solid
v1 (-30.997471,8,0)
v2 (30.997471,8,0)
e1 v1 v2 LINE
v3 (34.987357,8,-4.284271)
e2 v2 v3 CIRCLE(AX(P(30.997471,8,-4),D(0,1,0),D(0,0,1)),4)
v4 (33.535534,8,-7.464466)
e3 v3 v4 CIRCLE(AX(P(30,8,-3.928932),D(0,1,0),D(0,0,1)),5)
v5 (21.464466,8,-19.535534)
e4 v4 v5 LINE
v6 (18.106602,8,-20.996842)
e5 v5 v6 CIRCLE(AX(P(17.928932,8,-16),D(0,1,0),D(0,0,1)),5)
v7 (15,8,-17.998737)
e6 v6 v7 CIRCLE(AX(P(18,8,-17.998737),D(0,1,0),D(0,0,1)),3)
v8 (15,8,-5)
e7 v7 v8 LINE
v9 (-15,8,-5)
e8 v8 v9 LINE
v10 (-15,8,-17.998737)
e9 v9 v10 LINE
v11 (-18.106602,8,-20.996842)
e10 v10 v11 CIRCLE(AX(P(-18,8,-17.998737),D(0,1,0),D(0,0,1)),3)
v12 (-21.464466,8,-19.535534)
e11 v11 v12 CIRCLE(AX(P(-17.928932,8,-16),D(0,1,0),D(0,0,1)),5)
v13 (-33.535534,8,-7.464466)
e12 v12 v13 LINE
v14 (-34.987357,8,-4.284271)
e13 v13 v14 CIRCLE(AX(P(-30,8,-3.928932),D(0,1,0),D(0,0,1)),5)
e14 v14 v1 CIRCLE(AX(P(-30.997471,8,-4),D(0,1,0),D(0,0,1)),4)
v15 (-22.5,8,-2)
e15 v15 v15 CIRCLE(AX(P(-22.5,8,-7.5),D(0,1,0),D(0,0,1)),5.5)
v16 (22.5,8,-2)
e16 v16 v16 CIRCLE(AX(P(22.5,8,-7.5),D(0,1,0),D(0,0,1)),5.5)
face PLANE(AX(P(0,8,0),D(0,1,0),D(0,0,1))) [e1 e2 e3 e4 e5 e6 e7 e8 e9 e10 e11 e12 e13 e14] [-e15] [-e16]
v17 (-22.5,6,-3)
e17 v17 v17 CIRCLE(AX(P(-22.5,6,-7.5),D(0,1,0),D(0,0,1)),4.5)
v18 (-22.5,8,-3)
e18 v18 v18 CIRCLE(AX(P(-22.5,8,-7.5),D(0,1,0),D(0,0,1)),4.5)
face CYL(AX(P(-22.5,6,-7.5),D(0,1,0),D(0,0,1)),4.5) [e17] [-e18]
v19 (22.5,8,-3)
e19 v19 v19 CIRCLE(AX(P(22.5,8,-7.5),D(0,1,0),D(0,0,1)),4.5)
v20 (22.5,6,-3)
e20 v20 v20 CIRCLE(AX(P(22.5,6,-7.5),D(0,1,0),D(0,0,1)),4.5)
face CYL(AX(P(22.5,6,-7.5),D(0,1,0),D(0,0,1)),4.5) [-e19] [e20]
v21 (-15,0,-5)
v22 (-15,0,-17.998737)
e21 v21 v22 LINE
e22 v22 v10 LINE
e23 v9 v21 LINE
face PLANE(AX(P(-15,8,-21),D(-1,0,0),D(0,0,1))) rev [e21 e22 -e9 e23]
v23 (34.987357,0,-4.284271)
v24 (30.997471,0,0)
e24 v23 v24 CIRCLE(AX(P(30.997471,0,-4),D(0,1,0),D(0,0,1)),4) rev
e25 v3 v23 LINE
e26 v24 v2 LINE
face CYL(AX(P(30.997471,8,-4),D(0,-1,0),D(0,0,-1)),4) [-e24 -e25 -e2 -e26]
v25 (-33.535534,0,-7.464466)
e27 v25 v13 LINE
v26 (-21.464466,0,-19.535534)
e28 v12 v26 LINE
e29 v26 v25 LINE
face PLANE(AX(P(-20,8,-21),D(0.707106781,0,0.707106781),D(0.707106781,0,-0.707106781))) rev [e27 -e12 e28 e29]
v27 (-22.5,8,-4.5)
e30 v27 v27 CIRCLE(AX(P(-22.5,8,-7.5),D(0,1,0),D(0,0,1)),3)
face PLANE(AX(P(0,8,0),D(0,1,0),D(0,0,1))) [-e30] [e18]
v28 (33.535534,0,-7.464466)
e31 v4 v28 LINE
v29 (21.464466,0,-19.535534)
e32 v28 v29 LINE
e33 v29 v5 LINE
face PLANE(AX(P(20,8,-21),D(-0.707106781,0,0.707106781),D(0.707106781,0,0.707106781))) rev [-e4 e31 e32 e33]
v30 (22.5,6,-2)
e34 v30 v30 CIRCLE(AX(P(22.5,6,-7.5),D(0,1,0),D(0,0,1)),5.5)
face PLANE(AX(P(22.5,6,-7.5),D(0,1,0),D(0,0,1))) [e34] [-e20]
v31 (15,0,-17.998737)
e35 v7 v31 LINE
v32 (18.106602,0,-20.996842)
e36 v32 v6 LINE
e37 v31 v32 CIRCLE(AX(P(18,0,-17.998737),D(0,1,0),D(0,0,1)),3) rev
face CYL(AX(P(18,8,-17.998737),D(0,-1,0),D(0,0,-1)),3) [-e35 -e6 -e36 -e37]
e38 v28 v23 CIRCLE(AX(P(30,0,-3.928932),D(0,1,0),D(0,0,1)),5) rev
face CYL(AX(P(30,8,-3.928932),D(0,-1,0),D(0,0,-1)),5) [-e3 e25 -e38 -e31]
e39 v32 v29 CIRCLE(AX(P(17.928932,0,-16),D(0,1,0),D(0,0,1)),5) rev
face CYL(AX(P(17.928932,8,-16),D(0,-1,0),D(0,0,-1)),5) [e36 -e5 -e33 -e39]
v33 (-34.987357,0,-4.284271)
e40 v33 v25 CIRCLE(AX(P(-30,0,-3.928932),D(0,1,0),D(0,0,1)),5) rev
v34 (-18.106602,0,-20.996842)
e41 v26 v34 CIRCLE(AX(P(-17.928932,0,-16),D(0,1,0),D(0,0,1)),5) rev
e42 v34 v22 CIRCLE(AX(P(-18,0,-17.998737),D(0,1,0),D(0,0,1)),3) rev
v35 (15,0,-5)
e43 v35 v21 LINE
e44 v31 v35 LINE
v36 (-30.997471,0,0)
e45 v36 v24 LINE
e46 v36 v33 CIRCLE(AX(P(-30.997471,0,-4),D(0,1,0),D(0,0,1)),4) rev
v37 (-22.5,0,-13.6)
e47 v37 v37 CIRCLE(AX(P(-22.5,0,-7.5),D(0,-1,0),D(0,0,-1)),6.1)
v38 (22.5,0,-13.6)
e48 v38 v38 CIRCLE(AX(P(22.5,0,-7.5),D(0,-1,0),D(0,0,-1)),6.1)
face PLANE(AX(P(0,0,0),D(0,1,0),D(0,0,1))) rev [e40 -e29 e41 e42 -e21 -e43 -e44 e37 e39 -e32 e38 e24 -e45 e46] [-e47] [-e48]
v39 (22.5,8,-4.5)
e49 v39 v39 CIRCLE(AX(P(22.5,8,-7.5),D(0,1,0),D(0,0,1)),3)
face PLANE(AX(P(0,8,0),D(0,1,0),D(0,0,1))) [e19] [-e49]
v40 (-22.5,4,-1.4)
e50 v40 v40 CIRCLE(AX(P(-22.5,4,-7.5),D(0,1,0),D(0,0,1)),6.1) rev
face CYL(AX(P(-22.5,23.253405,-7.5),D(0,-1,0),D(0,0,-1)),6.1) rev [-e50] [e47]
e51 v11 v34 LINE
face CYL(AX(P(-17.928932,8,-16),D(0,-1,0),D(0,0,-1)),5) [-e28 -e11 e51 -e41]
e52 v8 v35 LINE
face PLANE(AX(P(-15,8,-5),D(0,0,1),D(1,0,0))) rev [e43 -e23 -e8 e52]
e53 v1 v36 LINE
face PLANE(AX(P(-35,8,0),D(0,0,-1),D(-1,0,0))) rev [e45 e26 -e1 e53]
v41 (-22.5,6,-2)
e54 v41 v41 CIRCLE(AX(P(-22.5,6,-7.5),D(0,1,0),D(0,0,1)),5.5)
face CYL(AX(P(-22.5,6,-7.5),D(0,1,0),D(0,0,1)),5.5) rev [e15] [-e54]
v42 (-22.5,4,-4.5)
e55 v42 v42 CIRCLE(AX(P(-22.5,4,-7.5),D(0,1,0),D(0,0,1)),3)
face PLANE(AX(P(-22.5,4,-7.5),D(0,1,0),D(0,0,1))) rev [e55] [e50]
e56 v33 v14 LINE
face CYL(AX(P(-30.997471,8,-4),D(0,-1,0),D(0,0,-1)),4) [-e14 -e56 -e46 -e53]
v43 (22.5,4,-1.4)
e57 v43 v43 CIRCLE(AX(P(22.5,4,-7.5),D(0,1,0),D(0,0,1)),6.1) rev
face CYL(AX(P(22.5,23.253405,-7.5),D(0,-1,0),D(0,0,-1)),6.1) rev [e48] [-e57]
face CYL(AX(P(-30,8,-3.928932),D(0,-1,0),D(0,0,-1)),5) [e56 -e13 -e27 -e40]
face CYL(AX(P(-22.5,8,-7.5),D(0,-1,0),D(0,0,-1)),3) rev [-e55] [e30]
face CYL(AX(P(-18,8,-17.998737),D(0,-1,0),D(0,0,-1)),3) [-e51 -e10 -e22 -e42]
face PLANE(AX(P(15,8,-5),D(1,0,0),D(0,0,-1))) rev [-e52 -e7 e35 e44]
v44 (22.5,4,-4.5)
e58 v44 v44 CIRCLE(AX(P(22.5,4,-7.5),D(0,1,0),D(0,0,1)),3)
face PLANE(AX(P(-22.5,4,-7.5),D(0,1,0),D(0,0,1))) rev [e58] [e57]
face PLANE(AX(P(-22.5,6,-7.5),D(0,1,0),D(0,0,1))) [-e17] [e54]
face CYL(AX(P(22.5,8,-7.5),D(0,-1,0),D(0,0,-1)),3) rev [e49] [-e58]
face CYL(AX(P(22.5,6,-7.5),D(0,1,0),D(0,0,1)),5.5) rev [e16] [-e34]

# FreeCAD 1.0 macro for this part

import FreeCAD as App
import Part
import Sketcher
from FreeCAD import Vector
Q = App.Units.Quantity


def edges_at(feature, points):
    """Names of the edges that pass closest to the given points."""
    edges = feature.Shape.Edges
    near = lambda p: min(range(len(edges)), key=lambda i: edges[i].distToShape(Part.Vertex(*p))[0])
    return sorted({f"Edge{near(p) + 1}" for p in points})

doc = App.newDocument("Part")
body = doc.addObject("PartDesign::Body", "Body")

sketch1 = doc.addObject("Sketcher::SketchObject", "Sketch")
body.addObject(sketch1)
sketch1.AttachmentSupport = (doc.XZ_Plane, [""])
sketch1.MapMode = "FlatFace"
sketch1.addGeometry(Part.LineSegment(Vector(-35, 0, 0), Vector(35, 0, 0)), False)
sketch1.addGeometry(Part.LineSegment(Vector(35, 0, 0), Vector(35, -6, 0)), False)
sketch1.addGeometry(Part.LineSegment(Vector(35, -6, 0), Vector(20, -21, 0)), False)
sketch1.addGeometry(Part.LineSegment(Vector(20, -21, 0), Vector(15, -21, 0)), False)
sketch1.addGeometry(Part.LineSegment(Vector(15, -21, 0), Vector(15, -5, 0)), False)
sketch1.addGeometry(Part.LineSegment(Vector(15, -5, 0), Vector(-15, -5, 0)), False)
sketch1.addGeometry(Part.LineSegment(Vector(-15, -5, 0), Vector(-15, -21, 0)), False)
sketch1.addGeometry(Part.LineSegment(Vector(-15, -21, 0), Vector(-20, -21, 0)), False)
sketch1.addGeometry(Part.LineSegment(Vector(-20, -21, 0), Vector(-35, -6, 0)), False)
sketch1.addGeometry(Part.LineSegment(Vector(-35, -6, 0), Vector(-35, 0, 0)), False)
sketch1.addGeometry(Part.Circle(Vector(-22.5, -7.5, 0), Vector(0, 0, 1), 3), False)
sketch1.addGeometry(Part.Circle(Vector(22.5, -7.5, 0), Vector(0, 0, 1), 3), False)
sketch1.addConstraint(Sketcher.Constraint("Coincident", 0, 2, 1, 1))
sketch1.addConstraint(Sketcher.Constraint("Coincident", 1, 2, 2, 1))
sketch1.addConstraint(Sketcher.Constraint("Coincident", 2, 2, 3, 1))
sketch1.addConstraint(Sketcher.Constraint("Coincident", 3, 2, 4, 1))
sketch1.addConstraint(Sketcher.Constraint("Coincident", 4, 2, 5, 1))
sketch1.addConstraint(Sketcher.Constraint("Coincident", 5, 2, 6, 1))
sketch1.addConstraint(Sketcher.Constraint("Coincident", 6, 2, 7, 1))
sketch1.addConstraint(Sketcher.Constraint("Coincident", 7, 2, 8, 1))
sketch1.addConstraint(Sketcher.Constraint("Coincident", 8, 2, 9, 1))
sketch1.addConstraint(Sketcher.Constraint("Coincident", 9, 2, 0, 1))
sketch1.addConstraint(Sketcher.Constraint("Horizontal", 0))
sketch1.addConstraint(Sketcher.Constraint("Vertical", 1))
sketch1.addConstraint(Sketcher.Constraint("Horizontal", 3))
sketch1.addConstraint(Sketcher.Constraint("Vertical", 4))
sketch1.addConstraint(Sketcher.Constraint("Horizontal", 5))
sketch1.addConstraint(Sketcher.Constraint("Vertical", 6))
sketch1.addConstraint(Sketcher.Constraint("Horizontal", 7))
sketch1.addConstraint(Sketcher.Constraint("Vertical", 9))
sketch1.addConstraint(Sketcher.Constraint("Equal", 10, 11))
sketch1.addConstraint(Sketcher.Constraint("Symmetric", 0, 2, 9, 2, -1, 1))
sketch1.addConstraint(Sketcher.Constraint("Symmetric", 10, 3, 11, 3, -2))
sketch1.addConstraint(Sketcher.Constraint("Symmetric", 3, 2, 6, 2, -2))
sketch1.addConstraint(Sketcher.Constraint("Perpendicular", 2, 8))
sketch1.addConstraint(Sketcher.Constraint("Horizontal", 1, 2, 8, 2))
sketch1.addConstraint(Sketcher.Constraint("Equal", 3, 7))
sketch1.addConstraint(Sketcher.Constraint("Diameter", 10, Q("6 mm")))
sketch1.addConstraint(Sketcher.Constraint("DistanceX", 0, 1, 0, 2, Q("70 mm")))
sketch1.addConstraint(Sketcher.Constraint("DistanceX", 3, 2, 3, 1, Q("5 mm")))
sketch1.addConstraint(Sketcher.Constraint("DistanceX", 5, 2, 5, 1, Q("30 mm")))
sketch1.addConstraint(Sketcher.Constraint("DistanceY", 1, 2, 1, 1, Q("6 mm")))
sketch1.addConstraint(Sketcher.Constraint("DistanceY", 4, 1, 4, 2, Q("16 mm")))
sketch1.addConstraint(Sketcher.Constraint("DistanceX", 10, 3, 11, 3, Q("45 mm")))
sketch1.addConstraint(Sketcher.Constraint("DistanceY", 10, 3, -1, 1, Q("7.5 mm")))
pad1 = doc.addObject("PartDesign::Pad", "Pad")
body.addObject(pad1)
pad1.Profile = sketch1
pad1.Length = 8
pad1.Reversed = True

sketch2 = doc.addObject("Sketcher::SketchObject", "Sketch001")
body.addObject(sketch2)
sketch2.AttachmentSupport = (doc.XZ_Plane, [""])
sketch2.MapMode = "FlatFace"
sketch2.AttachmentOffset = App.Placement(Vector(0, 0, -8), App.Rotation())
sketch2.addGeometry(Part.Circle(Vector(-22.5, -7.5, 0), Vector(0, 0, 1), 5.5), False)
sketch2.addGeometry(Part.Circle(Vector(-22.5, -7.5, 0), Vector(0, 0, 1), 4.5), False)
sketch2.addGeometry(Part.Circle(Vector(22.5, -7.5, 0), Vector(0, 0, 1), 5.5), False)
sketch2.addGeometry(Part.Circle(Vector(22.5, -7.5, 0), Vector(0, 0, 1), 4.5), False)
sketch2.addConstraint(Sketcher.Constraint("Coincident", 1, 3, 0, 3))
sketch2.addConstraint(Sketcher.Constraint("Coincident", 3, 3, 2, 3))
sketch2.addConstraint(Sketcher.Constraint("Equal", 0, 2))
sketch2.addConstraint(Sketcher.Constraint("Equal", 1, 3))
sketch2.addConstraint(Sketcher.Constraint("Symmetric", 0, 3, 2, 3, -2))
sketch2.addConstraint(Sketcher.Constraint("Diameter", 0, Q("11 mm")))
sketch2.addConstraint(Sketcher.Constraint("Diameter", 1, Q("9 mm")))
sketch2.addConstraint(Sketcher.Constraint("DistanceX", 0, 3, 2, 3, Q("45 mm")))
sketch2.addConstraint(Sketcher.Constraint("DistanceY", 0, 3, -1, 1, Q("7.5 mm")))
pocket1 = doc.addObject("PartDesign::Pocket", "Pocket")
body.addObject(pocket1)
pocket1.Profile = sketch2
pocket1.Length = 2
pocket1.Reversed = True

sketch3 = doc.addObject("Sketcher::SketchObject", "Sketch002")
body.addObject(sketch3)
sketch3.AttachmentSupport = (doc.XZ_Plane, [""])
sketch3.MapMode = "FlatFace"
sketch3.addGeometry(Part.Circle(Vector(-22.5, -7.5, 0), Vector(0, 0, 1), 6.1), False)
sketch3.addGeometry(Part.Circle(Vector(22.5, -7.5, 0), Vector(0, 0, 1), 6.1), False)
sketch3.addConstraint(Sketcher.Constraint("Equal", 0, 1))
sketch3.addConstraint(Sketcher.Constraint("Symmetric", 0, 3, 1, 3, -2))
sketch3.addConstraint(Sketcher.Constraint("Diameter", 0, Q("12.2 mm")))
sketch3.addConstraint(Sketcher.Constraint("DistanceX", 0, 3, 1, 3, Q("45 mm")))
sketch3.addConstraint(Sketcher.Constraint("DistanceY", 0, 3, -1, 1, Q("7.5 mm")))
pocket2 = doc.addObject("PartDesign::Pocket", "Pocket001")
body.addObject(pocket2)
pocket2.Profile = sketch3
pocket2.Length = 4
doc.recompute()

fillet = doc.addObject("PartDesign::Fillet", "Fillet")
body.addObject(fillet)
fillet.Base = (pocket2, edges_at(pocket2, [
    (-35, 4, -6),
    (-20, 4, -21),
    (20, 4, -21),
    (35, 4, -6),
]))
fillet.Radius = 5
doc.recompute()

fillet2 = doc.addObject("PartDesign::Fillet", "Fillet001")
body.addObject(fillet2)
fillet2.Base = (fillet, edges_at(fillet, [(15, 4, -21), (-15, 4, -21)]))
fillet2.Radius = 3
doc.recompute()

fillet3 = doc.addObject("PartDesign::Fillet", "Fillet002")
body.addObject(fillet3)
fillet3.Base = (fillet2, edges_at(fillet2, [(35, 4, 0), (-35, 4, 0)]))
fillet3.Radius = 4

doc.recompute()
